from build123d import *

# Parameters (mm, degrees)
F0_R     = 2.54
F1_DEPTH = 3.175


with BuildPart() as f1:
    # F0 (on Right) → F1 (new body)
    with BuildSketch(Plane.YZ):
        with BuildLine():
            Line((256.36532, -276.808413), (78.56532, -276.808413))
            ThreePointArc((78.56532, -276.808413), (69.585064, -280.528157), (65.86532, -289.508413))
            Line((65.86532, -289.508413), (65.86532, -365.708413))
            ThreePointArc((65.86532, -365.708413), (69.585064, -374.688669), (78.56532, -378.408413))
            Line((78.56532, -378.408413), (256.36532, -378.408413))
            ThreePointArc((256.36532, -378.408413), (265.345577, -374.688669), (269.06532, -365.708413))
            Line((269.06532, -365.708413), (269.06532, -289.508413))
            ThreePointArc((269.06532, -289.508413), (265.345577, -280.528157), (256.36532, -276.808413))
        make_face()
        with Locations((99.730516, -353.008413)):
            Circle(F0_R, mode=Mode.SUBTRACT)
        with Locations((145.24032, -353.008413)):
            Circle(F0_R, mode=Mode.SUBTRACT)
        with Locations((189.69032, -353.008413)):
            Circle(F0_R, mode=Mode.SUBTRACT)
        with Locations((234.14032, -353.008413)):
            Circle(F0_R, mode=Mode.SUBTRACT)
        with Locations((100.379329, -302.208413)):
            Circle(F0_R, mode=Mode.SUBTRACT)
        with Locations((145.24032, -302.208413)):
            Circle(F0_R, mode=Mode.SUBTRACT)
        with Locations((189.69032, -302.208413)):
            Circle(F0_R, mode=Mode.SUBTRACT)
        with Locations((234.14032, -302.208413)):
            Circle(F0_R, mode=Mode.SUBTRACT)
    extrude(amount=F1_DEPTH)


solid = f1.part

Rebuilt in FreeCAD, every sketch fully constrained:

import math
import FreeCAD as App
import Part
import Sketcher

V = App.Vector
Q = App.Units.Quantity

doc = App.newDocument("Part")
body = doc.addObject("PartDesign::Body", "Body")

sketch1 = doc.addObject("Sketcher::SketchObject", "Sketch")
body.addObject(sketch1)
sketch1.AttachmentSupport = (doc.YZ_Plane, [""])
sketch1.MapMode = "FlatFace"
sketch1.addGeometry(Part.LineSegment(V(256.4, -276.8, 0), V(78.6, -276.8, 0)), False)
sketch1.addGeometry(Part.ArcOfCircle(Part.Circle(V(78.6, -289.5, 0), V(0, 0, 1), 12.7), math.radians(90), math.radians(180)), False)
sketch1.addGeometry(Part.LineSegment(V(65.9, -289.5, 0), V(65.9, -365.7, 0)), False)
sketch1.addGeometry(Part.ArcOfCircle(Part.Circle(V(78.6, -365.7, 0), V(0, 0, 1), 12.7), math.radians(-180), math.radians(-90)), False)
sketch1.addGeometry(Part.LineSegment(V(78.6, -378.4, 0), V(256.4, -378.4, 0)), False)
sketch1.addGeometry(Part.ArcOfCircle(Part.Circle(V(256.4, -365.7, 0), V(0, 0, 1), 12.7), math.radians(-90), math.radians(0)), False)
sketch1.addGeometry(Part.LineSegment(V(269.1, -365.7, 0), V(269.1, -289.5, 0)), False)
sketch1.addGeometry(Part.ArcOfCircle(Part.Circle(V(256.4, -289.5, 0), V(0, 0, 1), 12.7), math.radians(0), math.radians(90)), False)
sketch1.addGeometry(Part.Circle(V(99.7, -353, 0), V(0, 0, 1), 2.5), False)
sketch1.addGeometry(Part.Circle(V(145.2, -353, 0), V(0, 0, 1), 2.5), False)
sketch1.addGeometry(Part.Circle(V(189.7, -353, 0), V(0, 0, 1), 2.5), False)
sketch1.addGeometry(Part.Circle(V(234.1, -353, 0), V(0, 0, 1), 2.5), False)
sketch1.addGeometry(Part.Circle(V(100.4, -302.2, 0), V(0, 0, 1), 2.5), False)
sketch1.addGeometry(Part.Circle(V(145.2, -302.2, 0), V(0, 0, 1), 2.5), False)
sketch1.addGeometry(Part.Circle(V(189.7, -302.2, 0), V(0, 0, 1), 2.5), False)
sketch1.addGeometry(Part.Circle(V(234.1, -302.2, 0), V(0, 0, 1), 2.5), False)
sketch1.addConstraint(Sketcher.Constraint("Tangent", 0, 2, 1, 1))
sketch1.addConstraint(Sketcher.Constraint("Tangent", 1, 2, 2, 1))
sketch1.addConstraint(Sketcher.Constraint("Tangent", 2, 2, 3, 1))
sketch1.addConstraint(Sketcher.Constraint("Tangent", 3, 2, 4, 1))
sketch1.addConstraint(Sketcher.Constraint("Tangent", 4, 2, 5, 1))
sketch1.addConstraint(Sketcher.Constraint("Tangent", 5, 2, 6, 1))
sketch1.addConstraint(Sketcher.Constraint("Tangent", 6, 2, 7, 1))
sketch1.addConstraint(Sketcher.Constraint("Tangent", 7, 2, 0, 1))
sketch1.addConstraint(Sketcher.Constraint("Horizontal", 0))
sketch1.addConstraint(Sketcher.Constraint("Vertical", 2))
sketch1.addConstraint(Sketcher.Constraint("Horizontal", 4))
sketch1.addConstraint(Sketcher.Constraint("Vertical", 6))
sketch1.addConstraint(Sketcher.Constraint("Equal", 1, 3))
sketch1.addConstraint(Sketcher.Constraint("Equal", 3, 5))
sketch1.addConstraint(Sketcher.Constraint("Equal", 5, 7))
sketch1.addConstraint(Sketcher.Constraint("Equal", 8, 9))
sketch1.addConstraint(Sketcher.Constraint("Equal", 9, 10))
sketch1.addConstraint(Sketcher.Constraint("Equal", 10, 11))
sketch1.addConstraint(Sketcher.Constraint("Equal", 11, 12))
sketch1.addConstraint(Sketcher.Constraint("Equal", 12, 13))
sketch1.addConstraint(Sketcher.Constraint("Equal", 13, 14))
sketch1.addConstraint(Sketcher.Constraint("Equal", 14, 15))
sketch1.addConstraint(Sketcher.Constraint("Horizontal", 8, 3, 9, 3))
sketch1.addConstraint(Sketcher.Constraint("Horizontal", 9, 3, 10, 3))
sketch1.addConstraint(Sketcher.Constraint("Horizontal", 10, 3, 11, 3))
sketch1.addConstraint(Sketcher.Constraint("Horizontal", 12, 3, 13, 3))
sketch1.addConstraint(Sketcher.Constraint("Horizontal", 13, 3, 14, 3))
sketch1.addConstraint(Sketcher.Constraint("Horizontal", 14, 3, 15, 3))
sketch1.addConstraint(Sketcher.Constraint("Vertical", 9, 3, 13, 3))
sketch1.addConstraint(Sketcher.Constraint("Vertical", 10, 3, 14, 3))
sketch1.addConstraint(Sketcher.Constraint("Vertical", 11, 3, 15, 3))
sketch1.addConstraint(Sketcher.Constraint("Diameter", 8, Q("0.2 in")))
sketch1.addConstraint(Sketcher.Constraint("Radius", 1, Q("0.5 in")))
sketch1.addConstraint(Sketcher.Constraint("DistanceX", 0, 2, 0, 1, Q("7 in")))
sketch1.addConstraint(Sketcher.Constraint("DistanceY", 2, 2, 2, 1, Q("3 in")))
sketch1.addConstraint(Sketcher.Constraint("DistanceY", 8, 3, 12, 3, Q("2 in")))
sketch1.addConstraint(Sketcher.Constraint("DistanceY", 12, 3, 0, 2, Q("1 in")))
sketch1.addConstraint(Sketcher.Constraint("DistanceX", 9, 3, 11, 3, Q("3.5 in")))
sketch1.addConstraint(Sketcher.Constraint("DistanceX", 9, 3, 10, 3, Q("1.75 in")))
sketch1.addConstraint(Sketcher.Constraint("DistanceX", 3, 3, 9, 3, Q("2.625 in")))
sketch1.addConstraint(Sketcher.Constraint("DistanceX", -1, 1, 1, 3, 78.56532))
sketch1.addConstraint(Sketcher.Constraint("DistanceY", 7, 3, -1, 1, 289.508412))
sketch1.addConstraint(Sketcher.Constraint("DistanceX", -1, 1, 12, 3, 100.379329))
sketch1.addConstraint(Sketcher.Constraint("DistanceX", -1, 1, 8, 3, 99.730516))
pad1 = doc.addObject("PartDesign::Pad", "Pad")
body.addObject(pad1)
pad1.Profile = sketch1
pad1.Length = Q("0.125 in")

doc.recompute()
